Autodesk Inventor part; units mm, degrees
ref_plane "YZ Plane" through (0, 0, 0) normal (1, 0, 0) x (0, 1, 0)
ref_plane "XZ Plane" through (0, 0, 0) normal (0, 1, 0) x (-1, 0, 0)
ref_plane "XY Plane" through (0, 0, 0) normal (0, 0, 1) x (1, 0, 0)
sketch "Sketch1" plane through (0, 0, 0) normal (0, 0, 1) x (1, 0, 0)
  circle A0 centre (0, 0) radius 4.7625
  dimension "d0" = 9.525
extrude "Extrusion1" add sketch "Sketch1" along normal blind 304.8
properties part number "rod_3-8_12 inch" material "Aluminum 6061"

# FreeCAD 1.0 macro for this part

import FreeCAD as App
import Part
import Sketcher

V = App.Vector
Q = App.Units.Quantity

doc = App.newDocument("Part")
body = doc.addObject("PartDesign::Body", "Body")

# Sketch on XY plane
sketch1 = doc.addObject("Sketcher::SketchObject", "Sketch")
body.addObject(sketch1)
sketch1.AttachmentSupport = (doc.XY_Plane, [""])
sketch1.MapMode = "FlatFace"
sketch1.addGeometry(Part.Circle(V(0, 0, 0), V(0, 0, 1), 4.8), False)
sketch1.addConstraint(Sketcher.Constraint("Coincident", 0, 3, -1, 1))
sketch1.addConstraint(Sketcher.Constraint("Diameter", 0, Q("0.375 in")))
pad1 = doc.addObject("PartDesign::Pad", "Pad")
body.addObject(pad1)
pad1.Profile = sketch1
pad1.Length = Q("12 in")

doc.recompute()
